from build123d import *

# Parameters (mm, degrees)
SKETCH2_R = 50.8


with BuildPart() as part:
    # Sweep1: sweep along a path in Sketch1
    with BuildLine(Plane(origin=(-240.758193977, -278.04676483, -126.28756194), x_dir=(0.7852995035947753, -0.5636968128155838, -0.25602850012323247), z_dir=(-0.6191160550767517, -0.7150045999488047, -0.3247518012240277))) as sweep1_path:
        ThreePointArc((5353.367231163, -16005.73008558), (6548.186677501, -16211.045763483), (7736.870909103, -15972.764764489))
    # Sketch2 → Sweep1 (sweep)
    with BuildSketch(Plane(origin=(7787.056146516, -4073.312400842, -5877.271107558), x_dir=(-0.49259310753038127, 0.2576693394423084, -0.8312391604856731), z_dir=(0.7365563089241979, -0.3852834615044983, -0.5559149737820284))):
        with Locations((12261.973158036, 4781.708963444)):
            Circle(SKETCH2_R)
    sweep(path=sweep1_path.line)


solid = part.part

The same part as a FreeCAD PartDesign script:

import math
import FreeCAD as App
import Part
import Sketcher
from FreeCAD import Vector
Q = App.Units.Quantity

doc = App.newDocument("Part")
body = doc.addObject("PartDesign::Body", "Body")

# Sketch on an angled plane
sketch1 = doc.addObject("Sketcher::SketchObject", "Sketch")
body.addObject(sketch1)
sketch1.Placement = App.Placement(Vector(7787.056147, -4073.312401, -5877.271108), App.Rotation(Vector(-0.492593108, 0.257669339, -0.83123916), Vector(0.463504945, 0.886094332, -0.000000001), Vector(0.736556309, -0.385283462, -0.555914974), "ZXY"))
sketch1.addGeometry(Part.Circle(Vector(12262, 4782, 0), Vector(0, 0, 1), 51), False)
sketch1.addConstraint(Sketcher.Constraint("Diameter", 0, Q("4 in")))
sketch1.addConstraint(Sketcher.Constraint("DistanceX", -1, 1, 0, 3, Q("12261.973151 mm")))
sketch1.addConstraint(Sketcher.Constraint("DistanceY", -1, 1, 0, 3, Q("4781.708964 mm")))

# Sketch on an angled plane
sketch2 = doc.addObject("Sketcher::SketchObject", "Sketch001")
body.addObject(sketch2)
sketch2.Placement = App.Placement(Vector(-240.758194, -278.046765, -126.287562), App.Rotation(Vector(-0.755979222, 0.654595612, 0), Vector(-0.212581104, -0.245505614, 0.945799274), Vector(0.619116055, 0.7150046, 0.324751801), "ZXY"))
sketch2.addGeometry(Part.ArcOfCircle(Part.Circle(Vector(-2768, -14177, 0), Vector(0, 0, 1), 3313), math.radians(-96), math.radians(-54)), False)
sketch2.addConstraint(Sketcher.Constraint("Radius", 0, Q("3312.936193 mm")))
sketch2.addConstraint(Sketcher.Constraint("DistanceX", 0, 1, 0, 3, Q("356.182508 mm")))
sketch2.addConstraint(Sketcher.Constraint("DistanceX", 0, 1, 0, 2, Q("2303.43589 mm")))
sketch2.addConstraint(Sketcher.Constraint("DistanceX", 0, 3, -1, 1, Q("2767.983075 mm")))
sketch2.addConstraint(Sketcher.Constraint("DistanceY", 0, 3, -1, 1, Q("14177.041393 mm")))
doc.recompute()

additivepipe = doc.addObject("PartDesign::AdditivePipe", "AdditivePipe")
body.addObject(additivepipe)
additivepipe.Profile = sketch1
additivepipe.Spine = (sketch2, ["Edge1"])

doc.recompute()
